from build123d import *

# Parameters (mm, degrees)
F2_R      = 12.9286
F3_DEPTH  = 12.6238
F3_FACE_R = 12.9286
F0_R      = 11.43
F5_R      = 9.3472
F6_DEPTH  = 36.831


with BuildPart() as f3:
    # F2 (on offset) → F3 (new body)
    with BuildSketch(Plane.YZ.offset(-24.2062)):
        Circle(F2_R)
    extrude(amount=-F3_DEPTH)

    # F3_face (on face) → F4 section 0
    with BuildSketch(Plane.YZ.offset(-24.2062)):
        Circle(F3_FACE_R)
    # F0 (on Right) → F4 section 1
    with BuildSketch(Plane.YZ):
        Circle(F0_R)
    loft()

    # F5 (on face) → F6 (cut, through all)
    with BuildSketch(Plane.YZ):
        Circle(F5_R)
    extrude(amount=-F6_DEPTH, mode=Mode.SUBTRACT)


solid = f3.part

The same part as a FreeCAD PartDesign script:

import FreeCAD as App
import Part
import Sketcher
Q = App.Units.Quantity

doc = App.newDocument("Part")
body = doc.addObject("PartDesign::Body", "Body")

sketch1 = doc.addObject("Sketcher::SketchObject", "Sketch")
body.addObject(sketch1)
sketch1.AttachmentSupport = (doc.YZ_Plane, [""])
sketch1.MapMode = "FlatFace"
sketch1.AttachmentOffset = App.Placement(App.Vector(0, 0, -0.953 * 25.4), App.Rotation())
sketch1.addGeometry(Part.Circle(App.Vector(0, 0, 0), App.Vector(0, 0, 1), 13), False)
sketch1.addConstraint([
    Sketcher.Constraint("Coincident", 0, 3, -1, 1),
    Sketcher.Constraint("Diameter", 0, Q("1.018 in")),
])
pad1 = doc.addObject("PartDesign::Pad", "Pad")
body.addObject(pad1)
pad1.Profile = sketch1
pad1.Length = Q("0.497 in")
pad1.Reversed = True

sketch2 = doc.addObject("Sketcher::SketchObject", "Sketch001")
body.addObject(sketch2)
sketch2.AttachmentSupport = (doc.YZ_Plane, [""])
sketch2.MapMode = "FlatFace"
sketch2.AttachmentOffset = App.Placement(App.Vector(0, 0, -0.953 * 25.4), App.Rotation())
sketch2.addGeometry(Part.Circle(App.Vector(0, 0, 0), App.Vector(0, 0, 1), 13), False)
sketch2.addConstraint([
    Sketcher.Constraint("Coincident", 0, 3, -1, 1),
    Sketcher.Constraint("Diameter", 0, Q("1.018 in")),
])

sketch3 = doc.addObject("Sketcher::SketchObject", "Sketch002")
body.addObject(sketch3)
sketch3.AttachmentSupport = (doc.YZ_Plane, [""])
sketch3.MapMode = "FlatFace"
sketch3.addGeometry(Part.Circle(App.Vector(0, 0, 0), App.Vector(0, 0, 1), 11), False)
sketch3.addConstraint([
    Sketcher.Constraint("Coincident", 0, 3, -1, 1),
    Sketcher.Constraint("Diameter", 0, Q("0.9 in")),
])

additiveloft = doc.addObject("PartDesign::AdditiveLoft", "AdditiveLoft")
body.addObject(additiveloft)
additiveloft.Profile = sketch2
additiveloft.Sections = [sketch3]

sketch4 = doc.addObject("Sketcher::SketchObject", "Sketch003")
body.addObject(sketch4)
sketch4.AttachmentSupport = (doc.YZ_Plane, [""])
sketch4.MapMode = "FlatFace"
sketch4.addGeometry(Part.Circle(App.Vector(0, 0, 0), App.Vector(0, 0, 1), 9), False)
sketch4.addConstraint([
    Sketcher.Constraint("Coincident", 0, 3, -1, 1),
    Sketcher.Constraint("Diameter", 0, Q("0.736 in")),
])
pocket1 = doc.addObject("PartDesign::Pocket", "Pocket")
body.addObject(pocket1)
pocket1.Profile = sketch4
pocket1.Type = "ThroughAll"

doc.recompute()
